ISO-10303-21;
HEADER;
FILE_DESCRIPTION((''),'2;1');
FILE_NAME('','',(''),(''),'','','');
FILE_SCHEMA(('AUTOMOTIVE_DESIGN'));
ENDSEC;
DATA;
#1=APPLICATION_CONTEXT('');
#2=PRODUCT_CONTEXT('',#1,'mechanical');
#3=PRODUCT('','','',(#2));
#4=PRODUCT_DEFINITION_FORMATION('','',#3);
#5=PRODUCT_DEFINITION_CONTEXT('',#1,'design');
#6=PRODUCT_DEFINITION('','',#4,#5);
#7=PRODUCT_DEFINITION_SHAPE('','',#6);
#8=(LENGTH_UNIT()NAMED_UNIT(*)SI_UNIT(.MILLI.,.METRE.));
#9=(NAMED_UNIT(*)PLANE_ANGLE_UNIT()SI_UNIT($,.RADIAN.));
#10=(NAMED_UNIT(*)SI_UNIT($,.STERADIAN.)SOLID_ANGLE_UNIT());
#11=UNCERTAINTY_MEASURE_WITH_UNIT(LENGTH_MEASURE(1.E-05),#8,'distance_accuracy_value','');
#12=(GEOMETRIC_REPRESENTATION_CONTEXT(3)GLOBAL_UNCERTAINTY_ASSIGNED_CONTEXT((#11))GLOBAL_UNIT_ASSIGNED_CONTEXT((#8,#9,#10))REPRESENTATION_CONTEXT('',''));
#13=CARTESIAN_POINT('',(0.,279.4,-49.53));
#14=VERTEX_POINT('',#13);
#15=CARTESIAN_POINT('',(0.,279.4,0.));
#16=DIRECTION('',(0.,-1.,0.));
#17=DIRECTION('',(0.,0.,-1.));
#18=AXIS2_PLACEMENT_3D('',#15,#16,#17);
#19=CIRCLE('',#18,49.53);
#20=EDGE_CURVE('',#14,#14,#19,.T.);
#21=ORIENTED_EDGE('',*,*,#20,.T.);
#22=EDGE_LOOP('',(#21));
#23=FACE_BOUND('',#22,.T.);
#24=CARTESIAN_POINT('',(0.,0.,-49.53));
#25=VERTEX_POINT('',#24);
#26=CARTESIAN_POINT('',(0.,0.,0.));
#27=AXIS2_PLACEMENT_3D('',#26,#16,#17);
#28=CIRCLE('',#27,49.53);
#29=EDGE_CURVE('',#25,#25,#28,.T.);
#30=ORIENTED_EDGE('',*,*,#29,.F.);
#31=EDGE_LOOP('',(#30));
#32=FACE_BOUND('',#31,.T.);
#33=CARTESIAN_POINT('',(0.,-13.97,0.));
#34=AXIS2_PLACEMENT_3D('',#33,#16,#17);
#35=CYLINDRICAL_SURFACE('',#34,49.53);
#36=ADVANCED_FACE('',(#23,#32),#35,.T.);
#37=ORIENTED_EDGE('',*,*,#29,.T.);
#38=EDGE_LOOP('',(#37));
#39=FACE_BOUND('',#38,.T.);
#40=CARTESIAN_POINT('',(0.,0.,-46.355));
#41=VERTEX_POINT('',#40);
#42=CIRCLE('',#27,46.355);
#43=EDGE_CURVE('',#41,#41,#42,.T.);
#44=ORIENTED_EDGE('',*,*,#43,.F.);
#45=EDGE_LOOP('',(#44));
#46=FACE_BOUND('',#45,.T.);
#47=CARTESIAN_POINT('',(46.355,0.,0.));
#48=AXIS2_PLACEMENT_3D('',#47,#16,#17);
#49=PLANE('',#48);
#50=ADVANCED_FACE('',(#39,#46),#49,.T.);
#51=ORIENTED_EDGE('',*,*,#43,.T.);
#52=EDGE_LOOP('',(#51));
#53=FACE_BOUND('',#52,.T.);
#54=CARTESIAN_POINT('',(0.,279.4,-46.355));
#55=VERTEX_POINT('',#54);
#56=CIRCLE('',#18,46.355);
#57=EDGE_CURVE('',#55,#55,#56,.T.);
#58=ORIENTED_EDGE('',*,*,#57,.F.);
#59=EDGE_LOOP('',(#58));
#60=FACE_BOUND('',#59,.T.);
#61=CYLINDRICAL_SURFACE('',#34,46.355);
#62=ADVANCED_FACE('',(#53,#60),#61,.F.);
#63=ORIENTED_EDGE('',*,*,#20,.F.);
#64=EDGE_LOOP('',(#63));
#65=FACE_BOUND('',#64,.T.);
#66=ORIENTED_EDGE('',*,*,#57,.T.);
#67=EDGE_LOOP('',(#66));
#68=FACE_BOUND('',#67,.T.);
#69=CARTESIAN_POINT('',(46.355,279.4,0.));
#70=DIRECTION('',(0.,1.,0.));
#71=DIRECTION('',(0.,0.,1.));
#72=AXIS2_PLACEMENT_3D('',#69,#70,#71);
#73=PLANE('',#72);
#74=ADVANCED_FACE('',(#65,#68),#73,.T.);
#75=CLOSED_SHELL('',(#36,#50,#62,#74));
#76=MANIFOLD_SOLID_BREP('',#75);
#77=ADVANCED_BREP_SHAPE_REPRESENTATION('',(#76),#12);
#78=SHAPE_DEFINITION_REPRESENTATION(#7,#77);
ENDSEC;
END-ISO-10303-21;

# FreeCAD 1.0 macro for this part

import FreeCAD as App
import Part
import Sketcher
from FreeCAD import Vector
Q = App.Units.Quantity


def add_polygon(sketch, points):
    """Adds a closed chain of lines whose ends are joined by coincident constraints."""
    first, n = sketch.GeometryCount, len(points)
    for a, b in zip(points, points[1:] + points[:1]):
        sketch.addGeometry(Part.LineSegment(App.Vector(*a, 0), App.Vector(*b, 0)), False)
    for i in range(n):
        sketch.addConstraint(Sketcher.Constraint("Coincident", first + i, 2, first + (i + 1) % n, 1))

doc = App.newDocument("Part")
body = doc.addObject("PartDesign::Body", "Body")

sketch1 = body.newObject("Sketcher::SketchObject", "Sketch")
sketch1.AttachmentSupport = (doc.getObject("XY_Plane"), [""])
sketch1.MapMode = "FlatFace"
add_polygon(sketch1, [(46.4, 279.4), (46.4, 0), (49.5, 0), (49.5, 279.4)])
sketch1.addConstraint(Sketcher.Constraint("Vertical", 0))
sketch1.addConstraint(Sketcher.Constraint("Horizontal", 1))
sketch1.addConstraint(Sketcher.Constraint("Vertical", 2))
sketch1.addConstraint(Sketcher.Constraint("Horizontal", 3))
sketch1.addConstraint(Sketcher.Constraint("PointOnObject", 0, 2, -1))
sketch1.addConstraint(Sketcher.Constraint("DistanceY", 0, 2, 0, 1, Q("11 in")))
sketch1.addConstraint(Sketcher.Constraint("DistanceX", 1, 1, 1, 2, Q("0.125 in")))
sketch1.addConstraint(Sketcher.Constraint("DistanceX", -1, 1, 1, 2, Q("1.95 in")))
revolution = body.newObject("PartDesign::Revolution", "Revolution")
revolution.Profile = sketch1
revolution.ReferenceAxis = (sketch1, ["V_Axis"])
revolution.Angle = 360

doc.recompute()
